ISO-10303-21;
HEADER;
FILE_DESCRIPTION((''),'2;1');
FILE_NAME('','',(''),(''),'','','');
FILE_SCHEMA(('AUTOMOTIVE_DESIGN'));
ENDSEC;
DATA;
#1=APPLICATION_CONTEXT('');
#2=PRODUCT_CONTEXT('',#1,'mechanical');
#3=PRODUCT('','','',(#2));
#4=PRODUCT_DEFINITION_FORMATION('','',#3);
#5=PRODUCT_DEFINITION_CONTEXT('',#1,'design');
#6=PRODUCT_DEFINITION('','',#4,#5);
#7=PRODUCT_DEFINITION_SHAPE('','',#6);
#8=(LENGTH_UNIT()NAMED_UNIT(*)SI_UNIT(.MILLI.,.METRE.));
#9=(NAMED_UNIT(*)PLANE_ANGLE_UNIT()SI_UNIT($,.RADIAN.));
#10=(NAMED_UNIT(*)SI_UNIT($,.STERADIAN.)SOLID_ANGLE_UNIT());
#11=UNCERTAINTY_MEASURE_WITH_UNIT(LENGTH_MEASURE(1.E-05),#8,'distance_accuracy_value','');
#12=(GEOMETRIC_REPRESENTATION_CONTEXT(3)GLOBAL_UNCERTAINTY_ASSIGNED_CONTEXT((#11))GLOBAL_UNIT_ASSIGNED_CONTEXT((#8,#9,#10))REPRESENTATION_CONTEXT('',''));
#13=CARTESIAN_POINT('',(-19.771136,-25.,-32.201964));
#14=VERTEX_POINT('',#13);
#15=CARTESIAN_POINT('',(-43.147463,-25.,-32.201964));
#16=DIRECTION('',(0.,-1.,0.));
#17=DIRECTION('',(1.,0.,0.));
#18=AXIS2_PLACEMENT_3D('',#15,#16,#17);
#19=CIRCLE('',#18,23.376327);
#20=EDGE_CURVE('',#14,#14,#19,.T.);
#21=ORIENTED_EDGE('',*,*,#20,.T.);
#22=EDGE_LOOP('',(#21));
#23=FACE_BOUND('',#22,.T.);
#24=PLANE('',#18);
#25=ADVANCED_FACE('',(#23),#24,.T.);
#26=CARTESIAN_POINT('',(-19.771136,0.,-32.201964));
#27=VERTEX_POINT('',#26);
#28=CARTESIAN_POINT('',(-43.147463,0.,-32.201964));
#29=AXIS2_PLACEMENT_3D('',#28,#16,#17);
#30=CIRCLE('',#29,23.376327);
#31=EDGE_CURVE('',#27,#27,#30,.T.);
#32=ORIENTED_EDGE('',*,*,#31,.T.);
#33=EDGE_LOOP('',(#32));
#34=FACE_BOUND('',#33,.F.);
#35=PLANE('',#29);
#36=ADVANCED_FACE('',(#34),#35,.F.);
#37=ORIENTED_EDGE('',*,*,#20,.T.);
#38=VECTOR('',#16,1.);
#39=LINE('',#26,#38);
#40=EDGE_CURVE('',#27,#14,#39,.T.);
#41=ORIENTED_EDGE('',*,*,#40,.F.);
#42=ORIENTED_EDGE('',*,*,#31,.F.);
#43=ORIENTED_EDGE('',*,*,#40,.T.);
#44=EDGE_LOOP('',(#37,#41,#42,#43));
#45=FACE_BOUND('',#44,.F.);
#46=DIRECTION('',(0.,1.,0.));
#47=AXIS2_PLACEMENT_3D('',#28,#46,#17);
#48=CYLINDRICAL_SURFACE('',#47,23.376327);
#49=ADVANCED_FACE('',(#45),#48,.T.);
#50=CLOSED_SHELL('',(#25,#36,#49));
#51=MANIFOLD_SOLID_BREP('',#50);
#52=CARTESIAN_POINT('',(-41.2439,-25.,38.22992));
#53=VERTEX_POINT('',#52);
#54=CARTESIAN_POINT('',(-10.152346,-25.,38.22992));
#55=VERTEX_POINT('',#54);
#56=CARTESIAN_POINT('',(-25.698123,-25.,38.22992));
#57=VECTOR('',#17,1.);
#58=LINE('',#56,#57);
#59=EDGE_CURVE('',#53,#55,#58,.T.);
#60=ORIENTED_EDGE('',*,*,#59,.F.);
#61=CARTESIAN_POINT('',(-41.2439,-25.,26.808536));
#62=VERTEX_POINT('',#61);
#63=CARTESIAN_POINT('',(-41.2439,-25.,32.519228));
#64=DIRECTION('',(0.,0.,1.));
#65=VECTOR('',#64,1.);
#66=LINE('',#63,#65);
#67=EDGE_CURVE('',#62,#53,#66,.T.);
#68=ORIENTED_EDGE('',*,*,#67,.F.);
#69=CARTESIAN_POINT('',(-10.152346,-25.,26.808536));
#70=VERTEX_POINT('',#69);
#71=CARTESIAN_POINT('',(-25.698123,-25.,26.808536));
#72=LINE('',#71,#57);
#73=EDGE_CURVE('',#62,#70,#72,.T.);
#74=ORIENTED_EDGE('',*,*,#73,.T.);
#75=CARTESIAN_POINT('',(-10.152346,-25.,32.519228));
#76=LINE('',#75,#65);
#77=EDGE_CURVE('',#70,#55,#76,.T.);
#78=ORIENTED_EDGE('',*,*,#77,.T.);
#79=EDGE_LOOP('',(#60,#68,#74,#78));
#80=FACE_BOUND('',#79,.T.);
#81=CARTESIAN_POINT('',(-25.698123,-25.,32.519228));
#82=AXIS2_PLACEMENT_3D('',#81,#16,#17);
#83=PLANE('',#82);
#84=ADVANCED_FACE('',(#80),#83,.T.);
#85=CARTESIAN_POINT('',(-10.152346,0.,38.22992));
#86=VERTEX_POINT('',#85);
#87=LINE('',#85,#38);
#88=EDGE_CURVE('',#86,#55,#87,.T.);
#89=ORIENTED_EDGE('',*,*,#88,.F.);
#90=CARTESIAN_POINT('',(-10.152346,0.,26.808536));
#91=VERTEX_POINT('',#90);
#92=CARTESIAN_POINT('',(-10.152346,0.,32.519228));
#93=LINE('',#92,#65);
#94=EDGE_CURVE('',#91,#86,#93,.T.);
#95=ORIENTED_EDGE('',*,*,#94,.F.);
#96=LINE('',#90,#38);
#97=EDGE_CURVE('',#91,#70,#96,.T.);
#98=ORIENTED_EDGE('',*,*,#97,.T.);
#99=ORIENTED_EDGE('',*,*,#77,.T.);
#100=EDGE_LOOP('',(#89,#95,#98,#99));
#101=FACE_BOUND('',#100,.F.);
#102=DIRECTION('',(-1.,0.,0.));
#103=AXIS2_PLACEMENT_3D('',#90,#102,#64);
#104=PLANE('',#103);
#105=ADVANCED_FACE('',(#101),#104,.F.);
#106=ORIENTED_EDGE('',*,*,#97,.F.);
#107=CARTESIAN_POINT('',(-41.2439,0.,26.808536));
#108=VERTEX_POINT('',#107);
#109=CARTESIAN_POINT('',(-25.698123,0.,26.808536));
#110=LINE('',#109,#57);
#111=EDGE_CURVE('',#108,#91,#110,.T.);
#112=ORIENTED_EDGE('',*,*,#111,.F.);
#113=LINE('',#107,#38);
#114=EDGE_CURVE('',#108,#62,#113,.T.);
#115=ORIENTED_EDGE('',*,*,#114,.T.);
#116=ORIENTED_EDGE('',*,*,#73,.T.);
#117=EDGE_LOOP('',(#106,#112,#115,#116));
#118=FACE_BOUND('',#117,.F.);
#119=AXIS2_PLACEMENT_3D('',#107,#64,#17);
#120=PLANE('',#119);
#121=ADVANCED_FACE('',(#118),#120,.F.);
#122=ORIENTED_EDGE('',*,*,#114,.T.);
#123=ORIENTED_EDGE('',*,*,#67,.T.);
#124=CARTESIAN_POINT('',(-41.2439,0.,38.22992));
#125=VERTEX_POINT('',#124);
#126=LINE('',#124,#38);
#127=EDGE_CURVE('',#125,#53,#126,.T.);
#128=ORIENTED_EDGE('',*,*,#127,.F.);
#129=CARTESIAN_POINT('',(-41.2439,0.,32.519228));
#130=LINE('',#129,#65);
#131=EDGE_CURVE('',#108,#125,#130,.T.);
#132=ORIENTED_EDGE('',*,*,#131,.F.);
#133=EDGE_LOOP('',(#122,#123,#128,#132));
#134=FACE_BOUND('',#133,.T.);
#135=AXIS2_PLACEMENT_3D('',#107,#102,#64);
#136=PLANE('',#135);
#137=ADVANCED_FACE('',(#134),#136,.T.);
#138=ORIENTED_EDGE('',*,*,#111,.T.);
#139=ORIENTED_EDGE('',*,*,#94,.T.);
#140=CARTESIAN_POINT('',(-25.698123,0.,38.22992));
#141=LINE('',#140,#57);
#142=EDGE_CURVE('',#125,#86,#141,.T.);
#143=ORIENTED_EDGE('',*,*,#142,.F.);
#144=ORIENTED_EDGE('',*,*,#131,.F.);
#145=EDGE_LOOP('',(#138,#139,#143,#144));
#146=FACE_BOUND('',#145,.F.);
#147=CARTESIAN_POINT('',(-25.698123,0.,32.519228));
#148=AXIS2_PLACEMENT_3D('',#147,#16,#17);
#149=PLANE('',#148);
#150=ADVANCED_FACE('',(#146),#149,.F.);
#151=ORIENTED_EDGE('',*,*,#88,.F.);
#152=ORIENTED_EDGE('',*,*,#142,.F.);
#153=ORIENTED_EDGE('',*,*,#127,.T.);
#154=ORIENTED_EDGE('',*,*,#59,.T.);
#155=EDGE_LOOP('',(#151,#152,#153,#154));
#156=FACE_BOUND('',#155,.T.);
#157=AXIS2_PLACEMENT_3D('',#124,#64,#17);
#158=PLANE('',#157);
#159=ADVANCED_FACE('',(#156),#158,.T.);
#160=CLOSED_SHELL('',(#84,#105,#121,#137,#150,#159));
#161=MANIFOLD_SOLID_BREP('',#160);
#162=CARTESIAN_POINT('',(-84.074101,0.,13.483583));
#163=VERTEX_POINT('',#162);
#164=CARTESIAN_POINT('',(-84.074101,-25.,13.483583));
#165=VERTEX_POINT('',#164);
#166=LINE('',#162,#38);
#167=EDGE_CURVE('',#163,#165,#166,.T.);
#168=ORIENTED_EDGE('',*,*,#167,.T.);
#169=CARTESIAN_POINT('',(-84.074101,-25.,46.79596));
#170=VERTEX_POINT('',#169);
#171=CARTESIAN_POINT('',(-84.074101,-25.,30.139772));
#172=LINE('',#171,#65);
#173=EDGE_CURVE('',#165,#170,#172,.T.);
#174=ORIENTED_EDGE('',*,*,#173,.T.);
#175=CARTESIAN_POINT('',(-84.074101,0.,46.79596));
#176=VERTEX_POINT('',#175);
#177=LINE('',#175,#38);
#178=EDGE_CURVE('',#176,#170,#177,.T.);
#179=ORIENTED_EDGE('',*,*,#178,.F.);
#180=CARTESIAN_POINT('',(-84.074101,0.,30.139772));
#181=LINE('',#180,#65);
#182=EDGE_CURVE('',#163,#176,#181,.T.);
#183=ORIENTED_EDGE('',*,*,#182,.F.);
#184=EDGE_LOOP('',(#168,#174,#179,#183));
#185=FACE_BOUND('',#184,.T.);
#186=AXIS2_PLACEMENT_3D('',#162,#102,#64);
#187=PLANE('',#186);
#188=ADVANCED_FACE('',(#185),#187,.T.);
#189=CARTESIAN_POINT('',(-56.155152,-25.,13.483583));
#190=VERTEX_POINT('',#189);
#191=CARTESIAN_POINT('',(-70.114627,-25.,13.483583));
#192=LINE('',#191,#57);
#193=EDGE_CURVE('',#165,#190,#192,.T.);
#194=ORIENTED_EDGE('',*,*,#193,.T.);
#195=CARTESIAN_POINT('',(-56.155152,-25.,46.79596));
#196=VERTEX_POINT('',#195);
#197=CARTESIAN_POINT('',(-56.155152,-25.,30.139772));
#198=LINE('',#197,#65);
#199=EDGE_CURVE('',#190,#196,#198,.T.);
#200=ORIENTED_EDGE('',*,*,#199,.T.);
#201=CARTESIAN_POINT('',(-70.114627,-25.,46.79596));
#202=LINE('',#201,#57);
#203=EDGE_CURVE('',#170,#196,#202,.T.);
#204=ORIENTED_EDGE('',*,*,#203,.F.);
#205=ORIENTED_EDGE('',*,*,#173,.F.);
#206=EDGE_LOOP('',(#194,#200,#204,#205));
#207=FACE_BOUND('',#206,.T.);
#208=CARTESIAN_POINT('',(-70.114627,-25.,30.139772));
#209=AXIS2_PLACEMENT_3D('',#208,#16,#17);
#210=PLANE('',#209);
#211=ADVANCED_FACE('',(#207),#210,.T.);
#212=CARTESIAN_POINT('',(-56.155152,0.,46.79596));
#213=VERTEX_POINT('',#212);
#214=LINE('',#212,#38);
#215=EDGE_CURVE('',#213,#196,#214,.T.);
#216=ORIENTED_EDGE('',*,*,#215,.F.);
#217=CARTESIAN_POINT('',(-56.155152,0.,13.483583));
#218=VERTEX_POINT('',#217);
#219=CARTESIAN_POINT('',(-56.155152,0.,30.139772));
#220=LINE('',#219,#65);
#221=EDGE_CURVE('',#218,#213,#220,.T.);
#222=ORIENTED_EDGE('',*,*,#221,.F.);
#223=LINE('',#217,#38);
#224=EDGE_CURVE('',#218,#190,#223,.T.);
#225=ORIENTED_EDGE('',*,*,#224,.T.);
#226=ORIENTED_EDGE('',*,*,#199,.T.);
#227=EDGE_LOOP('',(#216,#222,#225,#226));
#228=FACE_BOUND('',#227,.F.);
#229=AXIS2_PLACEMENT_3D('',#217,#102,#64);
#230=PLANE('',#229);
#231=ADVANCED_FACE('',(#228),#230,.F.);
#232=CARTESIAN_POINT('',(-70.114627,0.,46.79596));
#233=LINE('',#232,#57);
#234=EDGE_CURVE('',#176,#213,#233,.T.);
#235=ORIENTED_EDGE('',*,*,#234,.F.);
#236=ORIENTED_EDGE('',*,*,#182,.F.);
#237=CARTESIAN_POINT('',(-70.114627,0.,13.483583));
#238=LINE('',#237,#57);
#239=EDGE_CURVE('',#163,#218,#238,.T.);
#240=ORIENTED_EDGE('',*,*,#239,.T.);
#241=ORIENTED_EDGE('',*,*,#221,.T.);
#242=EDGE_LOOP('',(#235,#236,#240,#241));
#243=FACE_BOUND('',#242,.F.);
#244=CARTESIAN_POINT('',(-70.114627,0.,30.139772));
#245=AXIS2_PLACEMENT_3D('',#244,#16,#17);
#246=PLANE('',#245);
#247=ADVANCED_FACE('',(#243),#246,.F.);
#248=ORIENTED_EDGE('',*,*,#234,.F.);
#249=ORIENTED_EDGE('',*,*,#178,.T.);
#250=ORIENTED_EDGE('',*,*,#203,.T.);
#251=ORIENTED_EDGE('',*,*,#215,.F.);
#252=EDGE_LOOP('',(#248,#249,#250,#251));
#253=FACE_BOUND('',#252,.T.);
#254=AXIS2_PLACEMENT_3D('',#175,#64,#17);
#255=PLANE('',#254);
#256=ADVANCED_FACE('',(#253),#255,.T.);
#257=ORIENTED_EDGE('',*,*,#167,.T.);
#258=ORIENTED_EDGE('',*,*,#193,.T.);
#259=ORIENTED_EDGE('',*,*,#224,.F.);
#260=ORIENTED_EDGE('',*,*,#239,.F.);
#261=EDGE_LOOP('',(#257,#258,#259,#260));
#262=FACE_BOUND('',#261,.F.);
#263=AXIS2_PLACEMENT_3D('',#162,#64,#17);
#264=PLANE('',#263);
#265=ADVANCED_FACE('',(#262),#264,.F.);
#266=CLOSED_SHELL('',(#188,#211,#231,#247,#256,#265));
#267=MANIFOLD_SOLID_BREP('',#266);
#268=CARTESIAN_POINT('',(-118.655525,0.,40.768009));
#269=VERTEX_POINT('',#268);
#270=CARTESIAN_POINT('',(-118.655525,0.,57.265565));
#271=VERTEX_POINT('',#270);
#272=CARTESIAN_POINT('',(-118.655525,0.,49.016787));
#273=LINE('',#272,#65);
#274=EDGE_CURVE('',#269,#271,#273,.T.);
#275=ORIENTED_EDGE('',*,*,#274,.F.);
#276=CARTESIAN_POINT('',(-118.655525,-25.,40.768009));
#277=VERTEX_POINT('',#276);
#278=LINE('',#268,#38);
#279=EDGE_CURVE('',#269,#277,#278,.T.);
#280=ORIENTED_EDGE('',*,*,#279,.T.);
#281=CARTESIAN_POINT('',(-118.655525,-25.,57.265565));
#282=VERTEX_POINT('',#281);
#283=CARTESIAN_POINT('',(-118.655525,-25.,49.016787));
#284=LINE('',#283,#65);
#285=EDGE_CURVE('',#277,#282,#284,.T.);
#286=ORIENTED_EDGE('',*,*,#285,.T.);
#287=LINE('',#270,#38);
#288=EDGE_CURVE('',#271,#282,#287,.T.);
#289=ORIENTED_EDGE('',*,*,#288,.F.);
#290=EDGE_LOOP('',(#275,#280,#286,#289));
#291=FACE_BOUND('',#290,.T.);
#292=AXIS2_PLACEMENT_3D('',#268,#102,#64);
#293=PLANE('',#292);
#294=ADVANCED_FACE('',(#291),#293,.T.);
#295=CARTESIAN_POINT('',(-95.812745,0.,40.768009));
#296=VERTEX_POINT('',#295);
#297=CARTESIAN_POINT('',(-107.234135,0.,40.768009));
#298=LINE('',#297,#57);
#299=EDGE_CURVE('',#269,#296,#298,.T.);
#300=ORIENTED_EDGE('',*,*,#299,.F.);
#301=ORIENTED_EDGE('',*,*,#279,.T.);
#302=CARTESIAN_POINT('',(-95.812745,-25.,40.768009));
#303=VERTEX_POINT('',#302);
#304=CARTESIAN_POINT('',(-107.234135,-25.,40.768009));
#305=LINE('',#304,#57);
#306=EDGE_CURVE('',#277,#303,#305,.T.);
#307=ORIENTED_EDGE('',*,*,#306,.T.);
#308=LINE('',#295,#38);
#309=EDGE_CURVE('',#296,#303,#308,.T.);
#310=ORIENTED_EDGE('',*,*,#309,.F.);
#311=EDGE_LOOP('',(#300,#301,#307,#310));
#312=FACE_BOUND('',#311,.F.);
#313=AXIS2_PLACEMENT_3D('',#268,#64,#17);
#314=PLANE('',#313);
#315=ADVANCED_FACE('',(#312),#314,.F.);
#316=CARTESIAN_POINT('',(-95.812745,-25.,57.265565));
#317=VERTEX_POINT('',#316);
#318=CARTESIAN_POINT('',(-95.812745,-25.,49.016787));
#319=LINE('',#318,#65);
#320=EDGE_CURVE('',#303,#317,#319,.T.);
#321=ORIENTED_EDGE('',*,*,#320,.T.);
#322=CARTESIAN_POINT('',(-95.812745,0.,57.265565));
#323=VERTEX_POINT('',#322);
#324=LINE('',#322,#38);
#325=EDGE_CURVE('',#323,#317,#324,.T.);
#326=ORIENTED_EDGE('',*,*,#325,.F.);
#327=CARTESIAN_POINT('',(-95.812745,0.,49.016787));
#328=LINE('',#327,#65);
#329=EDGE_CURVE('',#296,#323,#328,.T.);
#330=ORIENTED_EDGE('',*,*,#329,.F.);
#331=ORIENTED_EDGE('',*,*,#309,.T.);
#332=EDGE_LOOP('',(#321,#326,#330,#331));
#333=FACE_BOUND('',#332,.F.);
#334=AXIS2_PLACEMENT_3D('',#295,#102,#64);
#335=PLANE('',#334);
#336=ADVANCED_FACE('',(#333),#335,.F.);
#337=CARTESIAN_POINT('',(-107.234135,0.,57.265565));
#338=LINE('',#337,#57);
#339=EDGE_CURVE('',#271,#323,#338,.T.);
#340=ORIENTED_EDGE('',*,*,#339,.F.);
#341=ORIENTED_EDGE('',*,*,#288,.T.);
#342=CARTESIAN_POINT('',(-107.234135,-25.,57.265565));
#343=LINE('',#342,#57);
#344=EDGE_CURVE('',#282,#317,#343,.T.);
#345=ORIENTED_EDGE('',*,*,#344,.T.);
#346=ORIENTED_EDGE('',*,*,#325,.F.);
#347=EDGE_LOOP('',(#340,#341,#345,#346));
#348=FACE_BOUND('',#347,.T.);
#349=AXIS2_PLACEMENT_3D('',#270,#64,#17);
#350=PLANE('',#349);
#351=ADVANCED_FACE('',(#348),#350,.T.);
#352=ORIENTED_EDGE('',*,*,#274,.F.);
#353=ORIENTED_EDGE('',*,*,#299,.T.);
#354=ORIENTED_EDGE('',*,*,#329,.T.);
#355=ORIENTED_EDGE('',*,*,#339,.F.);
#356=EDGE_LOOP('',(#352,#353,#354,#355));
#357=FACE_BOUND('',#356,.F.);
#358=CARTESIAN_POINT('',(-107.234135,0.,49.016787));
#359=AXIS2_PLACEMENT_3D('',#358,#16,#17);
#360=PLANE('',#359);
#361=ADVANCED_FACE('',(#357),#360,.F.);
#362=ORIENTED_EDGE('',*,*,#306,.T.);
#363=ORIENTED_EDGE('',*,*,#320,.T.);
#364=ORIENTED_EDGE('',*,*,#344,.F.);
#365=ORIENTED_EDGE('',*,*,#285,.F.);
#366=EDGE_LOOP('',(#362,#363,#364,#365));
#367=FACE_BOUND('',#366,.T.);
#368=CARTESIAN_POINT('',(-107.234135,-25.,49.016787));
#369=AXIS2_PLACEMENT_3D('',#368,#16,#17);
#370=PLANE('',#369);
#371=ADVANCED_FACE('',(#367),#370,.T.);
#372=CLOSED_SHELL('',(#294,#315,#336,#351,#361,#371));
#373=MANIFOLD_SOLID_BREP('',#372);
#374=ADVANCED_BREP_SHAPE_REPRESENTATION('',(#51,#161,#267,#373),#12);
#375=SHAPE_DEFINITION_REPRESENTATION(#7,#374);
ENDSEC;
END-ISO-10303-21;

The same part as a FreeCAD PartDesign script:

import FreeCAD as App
import Part
import Sketcher
Q = App.Units.Quantity

doc = App.newDocument("Part")
params = doc.addObject("Spreadsheet::Sheet", "Params")
for row, (alias, value) in enumerate([
    ("pad1_length", "25 mm"),
], start=1):
    params.set(f"A{row}", alias)
    params.set(f"B{row}", "=" + value)
    params.setAlias(f"B{row}", alias)

body = doc.addObject("PartDesign::Body", "Body")
body.AllowCompound = True

sketch1 = body.newObject("Sketcher::SketchObject", "Sketch")
sketch1.AttachmentSupport = (doc.getObject("XZ_Plane"), [""])
sketch1.MapMode = "FlatFace"
sketch1.addGeometry([
    Part.LineSegment(App.Vector(-118.655525, 57.265565, 0), App.Vector(-118.655525, 40.768009, 0)),
    Part.LineSegment(App.Vector(-118.655525, 40.768009, 0), App.Vector(-95.812745, 40.768009, 0)),
    Part.LineSegment(App.Vector(-95.812745, 40.768009, 0), App.Vector(-95.812745, 57.265565, 0)),
    Part.LineSegment(App.Vector(-95.812745, 57.265565, 0), App.Vector(-118.655525, 57.265565, 0)),
    Part.LineSegment(App.Vector(-84.074101, 46.79596, 0), App.Vector(-84.074101, 13.483583, 0)),
    Part.LineSegment(App.Vector(-84.074101, 13.483583, 0), App.Vector(-56.155152, 13.483583, 0)),
    Part.LineSegment(App.Vector(-56.155152, 13.483583, 0), App.Vector(-56.155152, 46.79596, 0)),
    Part.LineSegment(App.Vector(-56.155152, 46.79596, 0), App.Vector(-84.074101, 46.79596, 0)),
    Part.LineSegment(App.Vector(-41.2439, 38.22992, 0), App.Vector(-41.2439, 26.808536, 0)),
    Part.LineSegment(App.Vector(-41.2439, 26.808536, 0), App.Vector(-10.152346, 26.808536, 0)),
    Part.LineSegment(App.Vector(-10.152346, 26.808536, 0), App.Vector(-10.152346, 38.22992, 0)),
    Part.LineSegment(App.Vector(-10.152346, 38.22992, 0), App.Vector(-41.2439, 38.22992, 0)),
    Part.Circle(App.Vector(-43.147463, -32.201964, 0), App.Vector(0, 0, 1), 23.376327),
], False)
sketch1.addConstraint([
    Sketcher.Constraint("Coincident", 0, 2, 1, 1),
    Sketcher.Constraint("Coincident", 1, 2, 2, 1),
    Sketcher.Constraint("Coincident", 2, 2, 3, 1),
    Sketcher.Constraint("Coincident", 3, 2, 0, 1),
    Sketcher.Constraint("Coincident", 4, 2, 5, 1),
    Sketcher.Constraint("Coincident", 5, 2, 6, 1),
    Sketcher.Constraint("Coincident", 6, 2, 7, 1),
    Sketcher.Constraint("Coincident", 7, 2, 4, 1),
    Sketcher.Constraint("Coincident", 8, 2, 9, 1),
    Sketcher.Constraint("Coincident", 9, 2, 10, 1),
    Sketcher.Constraint("Coincident", 10, 2, 11, 1),
    Sketcher.Constraint("Coincident", 11, 2, 8, 1),
    Sketcher.Constraint("Vertical", 0),
    Sketcher.Constraint("Horizontal", 1),
    Sketcher.Constraint("Vertical", 2),
    Sketcher.Constraint("Horizontal", 3),
    Sketcher.Constraint("Vertical", 4),
    Sketcher.Constraint("Horizontal", 5),
    Sketcher.Constraint("Vertical", 6),
    Sketcher.Constraint("Horizontal", 7),
    Sketcher.Constraint("Vertical", 8),
    Sketcher.Constraint("Horizontal", 9),
    Sketcher.Constraint("Vertical", 10),
    Sketcher.Constraint("Horizontal", 11),
    Sketcher.Constraint("Diameter", 12, Q("46.752654 mm")),
    Sketcher.Constraint("DistanceX", 1, 1, 1, 2, Q("22.84278 mm")),
    Sketcher.Constraint("DistanceX", 5, 1, 5, 2, Q("27.918949 mm")),
    Sketcher.Constraint("DistanceX", 4, 2, -1, 1, Q("84.074101 mm")),
    Sketcher.Constraint("DistanceX", 8, 2, -1, 1, Q("41.2439 mm")),
    Sketcher.Constraint("DistanceY", 12, 3, 9, 2, Q("59.0105 mm")),
    Sketcher.Constraint("DistanceX", 9, 1, 9, 2, Q("31.091554 mm")),
    Sketcher.Constraint("DistanceY", 0, 2, 0, 1, Q("16.497556 mm")),
    Sketcher.Constraint("DistanceY", 4, 2, 4, 1, Q("33.312377 mm")),
    Sketcher.Constraint("DistanceY", 8, 2, 8, 1, Q("11.421384 mm")),
    Sketcher.Constraint("DistanceY", -1, 1, 0, 2, Q("40.768009 mm")),
    Sketcher.Constraint("DistanceY", -1, 1, 6, 2, Q("46.79596 mm")),
    Sketcher.Constraint("DistanceY", -1, 1, 10, 2, Q("38.22992 mm")),
    Sketcher.Constraint("DistanceX", 0, 2, 12, 3, Q("75.508062 mm")),
    Sketcher.Constraint("DistanceX", 4, 2, 12, 3, Q("40.926638 mm")),
])
pad1 = body.newObject("PartDesign::Pad", "Pad")
pad1.Profile = sketch1
pad1.setExpression("Length", "Params.pad1_length")

doc.recompute()
